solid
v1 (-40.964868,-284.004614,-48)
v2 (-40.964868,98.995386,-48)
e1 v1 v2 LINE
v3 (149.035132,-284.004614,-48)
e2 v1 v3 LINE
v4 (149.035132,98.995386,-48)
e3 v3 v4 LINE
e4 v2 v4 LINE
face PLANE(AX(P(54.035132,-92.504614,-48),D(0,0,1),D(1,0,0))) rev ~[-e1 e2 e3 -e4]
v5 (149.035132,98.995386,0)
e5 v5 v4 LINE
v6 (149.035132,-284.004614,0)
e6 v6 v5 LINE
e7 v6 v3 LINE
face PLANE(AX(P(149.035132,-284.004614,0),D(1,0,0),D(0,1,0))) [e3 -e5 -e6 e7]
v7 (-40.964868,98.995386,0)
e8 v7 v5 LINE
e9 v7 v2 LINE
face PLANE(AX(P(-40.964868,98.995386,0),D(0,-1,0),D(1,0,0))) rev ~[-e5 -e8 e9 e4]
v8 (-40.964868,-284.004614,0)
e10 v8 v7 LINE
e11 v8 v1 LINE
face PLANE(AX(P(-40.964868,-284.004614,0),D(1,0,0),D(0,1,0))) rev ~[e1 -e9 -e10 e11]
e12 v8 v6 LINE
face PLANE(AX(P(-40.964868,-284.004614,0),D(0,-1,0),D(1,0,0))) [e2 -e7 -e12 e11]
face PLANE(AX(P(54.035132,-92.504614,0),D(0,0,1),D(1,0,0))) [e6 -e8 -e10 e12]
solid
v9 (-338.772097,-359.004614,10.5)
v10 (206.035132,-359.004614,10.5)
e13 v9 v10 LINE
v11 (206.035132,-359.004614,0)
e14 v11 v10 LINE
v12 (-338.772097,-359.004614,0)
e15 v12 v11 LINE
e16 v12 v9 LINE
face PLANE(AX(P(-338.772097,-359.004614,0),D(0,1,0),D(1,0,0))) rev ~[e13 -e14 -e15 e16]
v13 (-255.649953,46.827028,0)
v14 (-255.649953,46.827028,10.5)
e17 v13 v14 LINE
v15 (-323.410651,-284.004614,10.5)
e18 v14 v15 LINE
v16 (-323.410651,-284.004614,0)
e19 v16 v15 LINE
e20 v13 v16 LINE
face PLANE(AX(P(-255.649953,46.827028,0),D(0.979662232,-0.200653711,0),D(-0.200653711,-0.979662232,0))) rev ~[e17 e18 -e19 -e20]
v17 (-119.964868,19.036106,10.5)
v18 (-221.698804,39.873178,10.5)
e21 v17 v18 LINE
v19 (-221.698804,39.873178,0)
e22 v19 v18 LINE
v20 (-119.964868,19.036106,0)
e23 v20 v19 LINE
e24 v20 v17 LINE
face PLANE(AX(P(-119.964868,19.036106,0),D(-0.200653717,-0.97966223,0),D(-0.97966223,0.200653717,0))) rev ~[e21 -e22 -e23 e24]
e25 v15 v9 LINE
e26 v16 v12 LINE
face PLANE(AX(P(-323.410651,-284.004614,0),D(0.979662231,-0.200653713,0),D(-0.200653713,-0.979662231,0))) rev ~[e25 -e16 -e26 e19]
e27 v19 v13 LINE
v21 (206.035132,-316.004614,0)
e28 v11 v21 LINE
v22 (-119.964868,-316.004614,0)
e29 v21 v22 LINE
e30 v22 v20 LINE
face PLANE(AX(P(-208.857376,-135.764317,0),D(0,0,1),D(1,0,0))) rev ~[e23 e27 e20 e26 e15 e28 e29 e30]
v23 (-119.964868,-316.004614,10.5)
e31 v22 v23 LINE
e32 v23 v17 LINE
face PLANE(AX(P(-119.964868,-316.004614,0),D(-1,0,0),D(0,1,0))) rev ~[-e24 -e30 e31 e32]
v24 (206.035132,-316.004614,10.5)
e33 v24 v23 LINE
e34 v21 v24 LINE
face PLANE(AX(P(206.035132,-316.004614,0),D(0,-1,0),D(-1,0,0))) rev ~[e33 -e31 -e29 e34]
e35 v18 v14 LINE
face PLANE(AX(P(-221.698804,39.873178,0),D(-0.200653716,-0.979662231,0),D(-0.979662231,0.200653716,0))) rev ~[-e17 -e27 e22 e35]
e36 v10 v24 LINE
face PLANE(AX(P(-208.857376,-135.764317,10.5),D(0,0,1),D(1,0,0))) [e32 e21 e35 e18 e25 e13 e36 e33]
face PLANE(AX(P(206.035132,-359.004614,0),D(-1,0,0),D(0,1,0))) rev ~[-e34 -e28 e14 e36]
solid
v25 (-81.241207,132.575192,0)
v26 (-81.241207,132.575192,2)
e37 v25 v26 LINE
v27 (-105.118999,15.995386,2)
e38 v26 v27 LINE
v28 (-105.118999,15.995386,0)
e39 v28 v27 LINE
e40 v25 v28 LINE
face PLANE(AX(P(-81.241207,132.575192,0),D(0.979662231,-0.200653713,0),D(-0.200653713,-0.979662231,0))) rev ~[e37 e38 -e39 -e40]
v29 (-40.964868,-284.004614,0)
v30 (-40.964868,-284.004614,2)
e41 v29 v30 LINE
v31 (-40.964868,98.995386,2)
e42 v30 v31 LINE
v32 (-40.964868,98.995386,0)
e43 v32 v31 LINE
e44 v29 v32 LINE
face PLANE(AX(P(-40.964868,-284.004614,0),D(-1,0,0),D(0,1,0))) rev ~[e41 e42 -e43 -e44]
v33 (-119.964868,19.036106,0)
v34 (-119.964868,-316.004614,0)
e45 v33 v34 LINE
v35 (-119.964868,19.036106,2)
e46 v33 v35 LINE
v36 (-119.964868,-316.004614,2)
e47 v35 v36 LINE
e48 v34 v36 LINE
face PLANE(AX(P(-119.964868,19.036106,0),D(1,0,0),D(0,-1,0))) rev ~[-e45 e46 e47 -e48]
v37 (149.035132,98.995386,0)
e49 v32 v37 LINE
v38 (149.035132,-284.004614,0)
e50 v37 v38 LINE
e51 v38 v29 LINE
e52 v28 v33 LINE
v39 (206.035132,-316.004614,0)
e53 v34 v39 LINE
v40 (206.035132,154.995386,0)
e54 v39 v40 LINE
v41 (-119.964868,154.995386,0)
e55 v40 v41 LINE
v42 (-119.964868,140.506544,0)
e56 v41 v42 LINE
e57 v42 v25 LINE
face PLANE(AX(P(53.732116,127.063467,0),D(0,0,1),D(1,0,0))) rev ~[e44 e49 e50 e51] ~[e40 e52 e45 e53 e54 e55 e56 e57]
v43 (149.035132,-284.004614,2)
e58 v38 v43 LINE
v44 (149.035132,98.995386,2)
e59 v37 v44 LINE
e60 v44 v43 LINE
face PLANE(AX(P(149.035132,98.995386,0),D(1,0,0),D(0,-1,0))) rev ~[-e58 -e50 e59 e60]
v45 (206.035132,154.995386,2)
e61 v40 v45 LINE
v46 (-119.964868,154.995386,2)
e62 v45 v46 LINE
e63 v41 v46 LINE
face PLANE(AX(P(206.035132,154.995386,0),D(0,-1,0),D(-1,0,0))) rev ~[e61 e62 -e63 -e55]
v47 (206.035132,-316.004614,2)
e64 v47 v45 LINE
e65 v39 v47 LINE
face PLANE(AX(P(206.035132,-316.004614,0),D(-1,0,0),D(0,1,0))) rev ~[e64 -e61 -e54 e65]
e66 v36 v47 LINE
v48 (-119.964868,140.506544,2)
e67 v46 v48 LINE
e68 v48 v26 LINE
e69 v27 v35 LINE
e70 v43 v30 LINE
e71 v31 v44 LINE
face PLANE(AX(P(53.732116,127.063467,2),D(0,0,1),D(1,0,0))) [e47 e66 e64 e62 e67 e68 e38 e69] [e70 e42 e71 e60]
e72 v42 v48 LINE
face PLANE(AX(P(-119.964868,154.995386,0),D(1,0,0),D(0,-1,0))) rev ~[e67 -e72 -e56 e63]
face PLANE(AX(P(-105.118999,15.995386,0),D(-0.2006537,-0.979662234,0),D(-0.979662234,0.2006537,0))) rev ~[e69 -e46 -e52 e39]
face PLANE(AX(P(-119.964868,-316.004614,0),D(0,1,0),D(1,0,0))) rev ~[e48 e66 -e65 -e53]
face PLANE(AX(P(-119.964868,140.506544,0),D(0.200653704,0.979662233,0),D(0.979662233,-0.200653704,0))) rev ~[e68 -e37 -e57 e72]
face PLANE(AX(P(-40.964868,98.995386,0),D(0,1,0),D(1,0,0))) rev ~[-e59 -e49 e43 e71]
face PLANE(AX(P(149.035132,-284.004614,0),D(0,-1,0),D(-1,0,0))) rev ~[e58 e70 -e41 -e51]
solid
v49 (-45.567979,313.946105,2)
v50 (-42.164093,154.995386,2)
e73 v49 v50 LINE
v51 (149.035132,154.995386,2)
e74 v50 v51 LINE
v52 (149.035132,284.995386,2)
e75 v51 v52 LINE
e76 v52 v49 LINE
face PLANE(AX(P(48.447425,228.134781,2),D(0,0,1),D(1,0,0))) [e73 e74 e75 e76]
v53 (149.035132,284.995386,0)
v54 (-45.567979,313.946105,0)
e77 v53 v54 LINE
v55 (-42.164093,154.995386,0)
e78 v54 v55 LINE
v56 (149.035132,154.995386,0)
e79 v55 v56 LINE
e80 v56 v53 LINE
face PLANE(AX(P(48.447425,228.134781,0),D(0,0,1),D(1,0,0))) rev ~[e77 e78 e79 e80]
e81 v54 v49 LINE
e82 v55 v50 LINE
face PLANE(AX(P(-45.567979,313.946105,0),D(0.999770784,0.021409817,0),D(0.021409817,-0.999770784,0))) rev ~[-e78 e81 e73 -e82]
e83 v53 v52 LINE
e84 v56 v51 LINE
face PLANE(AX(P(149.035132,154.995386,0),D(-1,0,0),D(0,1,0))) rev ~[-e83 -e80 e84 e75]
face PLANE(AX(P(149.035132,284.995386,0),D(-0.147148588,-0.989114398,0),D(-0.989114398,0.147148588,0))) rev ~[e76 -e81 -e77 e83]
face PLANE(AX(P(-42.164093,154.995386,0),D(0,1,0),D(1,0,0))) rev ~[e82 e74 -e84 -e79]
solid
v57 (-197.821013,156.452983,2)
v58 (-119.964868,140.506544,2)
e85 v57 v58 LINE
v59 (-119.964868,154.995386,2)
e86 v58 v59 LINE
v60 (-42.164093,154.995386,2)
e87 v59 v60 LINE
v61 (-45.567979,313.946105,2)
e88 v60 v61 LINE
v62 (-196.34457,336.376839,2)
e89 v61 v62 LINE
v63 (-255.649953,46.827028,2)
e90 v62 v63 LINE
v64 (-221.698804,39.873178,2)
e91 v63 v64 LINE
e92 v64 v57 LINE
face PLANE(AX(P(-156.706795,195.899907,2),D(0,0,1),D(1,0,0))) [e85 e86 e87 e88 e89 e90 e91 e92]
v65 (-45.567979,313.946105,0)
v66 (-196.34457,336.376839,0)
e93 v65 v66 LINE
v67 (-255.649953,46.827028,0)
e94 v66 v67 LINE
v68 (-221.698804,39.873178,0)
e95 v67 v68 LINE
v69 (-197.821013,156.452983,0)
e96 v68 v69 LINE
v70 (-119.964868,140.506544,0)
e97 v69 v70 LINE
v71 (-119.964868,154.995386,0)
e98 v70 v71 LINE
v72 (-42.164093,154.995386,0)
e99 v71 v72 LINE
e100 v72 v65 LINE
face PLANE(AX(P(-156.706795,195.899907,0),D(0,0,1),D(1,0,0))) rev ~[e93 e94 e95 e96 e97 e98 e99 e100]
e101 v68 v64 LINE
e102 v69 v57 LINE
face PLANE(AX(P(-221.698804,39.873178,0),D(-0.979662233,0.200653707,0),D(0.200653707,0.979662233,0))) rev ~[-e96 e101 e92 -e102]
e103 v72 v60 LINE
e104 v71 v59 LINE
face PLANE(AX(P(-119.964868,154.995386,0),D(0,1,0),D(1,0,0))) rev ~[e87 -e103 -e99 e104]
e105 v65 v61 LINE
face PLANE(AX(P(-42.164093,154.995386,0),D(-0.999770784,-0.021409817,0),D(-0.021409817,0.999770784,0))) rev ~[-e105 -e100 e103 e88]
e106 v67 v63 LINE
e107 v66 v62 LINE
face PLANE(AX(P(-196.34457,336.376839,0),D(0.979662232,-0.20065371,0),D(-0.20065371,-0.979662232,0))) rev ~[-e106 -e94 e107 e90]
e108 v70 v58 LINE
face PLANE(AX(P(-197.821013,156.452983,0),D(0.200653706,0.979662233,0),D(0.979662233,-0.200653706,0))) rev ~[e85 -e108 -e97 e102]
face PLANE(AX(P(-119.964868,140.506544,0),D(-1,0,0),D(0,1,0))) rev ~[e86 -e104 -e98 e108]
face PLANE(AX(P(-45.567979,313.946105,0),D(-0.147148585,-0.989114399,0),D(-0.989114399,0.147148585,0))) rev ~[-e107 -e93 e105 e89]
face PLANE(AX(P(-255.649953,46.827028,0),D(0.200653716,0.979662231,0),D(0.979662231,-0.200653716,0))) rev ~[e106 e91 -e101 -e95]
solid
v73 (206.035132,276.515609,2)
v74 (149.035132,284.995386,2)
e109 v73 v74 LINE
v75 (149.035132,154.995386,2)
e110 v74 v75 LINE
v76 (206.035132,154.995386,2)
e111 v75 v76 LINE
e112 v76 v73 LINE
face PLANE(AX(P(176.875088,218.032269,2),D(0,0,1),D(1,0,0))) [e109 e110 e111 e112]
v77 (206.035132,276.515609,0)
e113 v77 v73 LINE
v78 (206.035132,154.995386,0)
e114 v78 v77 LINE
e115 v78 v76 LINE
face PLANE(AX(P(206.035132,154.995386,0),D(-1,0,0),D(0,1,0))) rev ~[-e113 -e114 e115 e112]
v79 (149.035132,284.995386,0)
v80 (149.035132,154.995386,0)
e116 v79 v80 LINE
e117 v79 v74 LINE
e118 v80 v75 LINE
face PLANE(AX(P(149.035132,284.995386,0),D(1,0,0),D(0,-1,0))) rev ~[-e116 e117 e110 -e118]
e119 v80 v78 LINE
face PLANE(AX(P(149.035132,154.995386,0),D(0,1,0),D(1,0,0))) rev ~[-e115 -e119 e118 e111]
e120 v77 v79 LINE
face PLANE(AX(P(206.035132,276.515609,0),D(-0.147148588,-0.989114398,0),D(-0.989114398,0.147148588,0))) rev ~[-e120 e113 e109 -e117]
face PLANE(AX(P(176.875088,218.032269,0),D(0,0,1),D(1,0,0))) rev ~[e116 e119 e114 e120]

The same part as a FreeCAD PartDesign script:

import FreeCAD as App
import Part
import Sketcher

V = App.Vector

doc = App.newDocument("Part")
params = doc.addObject("Spreadsheet::Sheet", "Params")
for row, (alias, value) in enumerate([
    ("sketch1_width", "190 mm"),
    ("sketch1_height", "383 mm"),
    ("pad1_length", "48 mm"),
    ("sketch2_width", "326 mm"),
    ("sketch2_width2", "190 mm"),
    ("sketch2_height", "471 mm"),
    ("sketch2_height2", "383 mm"),
    ("sketch2_length", "119 mm"),
    ("pad2_length", "2 mm"),
    ("sketch3_width", "326 mm"),
    ("sketch3_height", "43 mm"),
    ("pad3_length", "10.5 mm"),
    ("sketch4_height", "130 mm"),
    ("pad4_length", "2 mm"),
    ("sketch5_width", "57 mm"),
    ("sketch5_height", "130 mm"),
    ("sketch5_length", "118.999999 mm"),
    ("pad5_length", "2 mm"),
], start=1):
    params.set(f"A{row}", alias)
    params.set(f"B{row}", "=" + value)
    params.setAlias(f"B{row}", alias)

body = doc.addObject("PartDesign::Body", "Body")

# Sketch on XY plane
sketch1 = doc.addObject("Sketcher::SketchObject", "Sketch")
body.addObject(sketch1)
sketch1.AttachmentSupport = (doc.XY_Plane, [""])
sketch1.MapMode = "FlatFace"
sketch1.addGeometry(Part.LineSegment(V(-41, 99, 0), V(-41, -284, 0)), False)
sketch1.addGeometry(Part.LineSegment(V(-41, -284, 0), V(149, -284, 0)), False)
sketch1.addGeometry(Part.LineSegment(V(149, -284, 0), V(149, 99, 0)), False)
sketch1.addGeometry(Part.LineSegment(V(149, 99, 0), V(-41, 99, 0)), False)
sketch1.addConstraint(Sketcher.Constraint("Coincident", 0, 2, 1, 1))
sketch1.addConstraint(Sketcher.Constraint("Coincident", 1, 2, 2, 1))
sketch1.addConstraint(Sketcher.Constraint("Coincident", 2, 2, 3, 1))
sketch1.addConstraint(Sketcher.Constraint("Coincident", 3, 2, 0, 1))
sketch1.addConstraint(Sketcher.Constraint("Vertical", 0))
sketch1.addConstraint(Sketcher.Constraint("Horizontal", 1))
sketch1.addConstraint(Sketcher.Constraint("Vertical", 2))
sketch1.addConstraint(Sketcher.Constraint("Horizontal", 3))
sketch1.addConstraint(Sketcher.Constraint("DistanceX", 1, 1, 1, 2, 190.0))
sketch1.addConstraint(Sketcher.Constraint("DistanceY", 0, 2, 0, 1, 383.0))
sketch1.addConstraint(Sketcher.Constraint("DistanceX", 0, 2, -1, 1, 40.964868))
sketch1.addConstraint(Sketcher.Constraint("DistanceY", 0, 2, -1, 1, 284.004614))
sketch1.setExpression("Constraints[8]", "Params.sketch1_width")
sketch1.setExpression("Constraints[9]", "Params.sketch1_height")
pad1 = doc.addObject("PartDesign::Pad", "Pad")
body.addObject(pad1)
pad1.Profile = sketch1
pad1.setExpression("Length", "Params.pad1_length")
pad1.Reversed = True
body2 = doc.addObject("PartDesign::Body", "Body001")

# Sketch on XY plane
sketch2 = doc.addObject("Sketcher::SketchObject", "Sketch001")
body2.addObject(sketch2)
sketch2.AttachmentSupport = (doc.getObject("XY_Plane001"), [""])
sketch2.MapMode = "FlatFace"
sketch2.addGeometry(Part.LineSegment(V(-120, 155, 0), V(-120, 141, 0)), False)
sketch2.addGeometry(Part.LineSegment(V(-120, 141, 0), V(-81, 133, 0)), False)
sketch2.addGeometry(Part.LineSegment(V(-81, 133, 0), V(-105, 16, 0)), False)
sketch2.addGeometry(Part.LineSegment(V(-105, 16, 0), V(-120, 19, 0)), False)
sketch2.addGeometry(Part.LineSegment(V(-120, 19, 0), V(-120, -316, 0)), False)
sketch2.addGeometry(Part.LineSegment(V(-120, -316, 0), V(206, -316, 0)), False)
sketch2.addGeometry(Part.LineSegment(V(206, -316, 0), V(206, 155, 0)), False)
sketch2.addGeometry(Part.LineSegment(V(206, 155, 0), V(-120, 155, 0)), False)
sketch2.addGeometry(Part.LineSegment(V(149, -284, 0), V(-41, -284, 0)), False)
sketch2.addGeometry(Part.LineSegment(V(-41, -284, 0), V(-41, 99, 0)), False)
sketch2.addGeometry(Part.LineSegment(V(-41, 99, 0), V(149, 99, 0)), False)
sketch2.addGeometry(Part.LineSegment(V(149, 99, 0), V(149, -284, 0)), False)
sketch2.addConstraint(Sketcher.Constraint("Coincident", 0, 2, 1, 1))
sketch2.addConstraint(Sketcher.Constraint("Coincident", 1, 2, 2, 1))
sketch2.addConstraint(Sketcher.Constraint("Coincident", 2, 2, 3, 1))
sketch2.addConstraint(Sketcher.Constraint("Coincident", 3, 2, 4, 1))
sketch2.addConstraint(Sketcher.Constraint("Coincident", 4, 2, 5, 1))
sketch2.addConstraint(Sketcher.Constraint("Coincident", 5, 2, 6, 1))
sketch2.addConstraint(Sketcher.Constraint("Coincident", 6, 2, 7, 1))
sketch2.addConstraint(Sketcher.Constraint("Coincident", 7, 2, 0, 1))
sketch2.addConstraint(Sketcher.Constraint("Coincident", 8, 2, 9, 1))
sketch2.addConstraint(Sketcher.Constraint("Coincident", 9, 2, 10, 1))
sketch2.addConstraint(Sketcher.Constraint("Coincident", 10, 2, 11, 1))
sketch2.addConstraint(Sketcher.Constraint("Coincident", 11, 2, 8, 1))
sketch2.addConstraint(Sketcher.Constraint("Vertical", 0))
sketch2.addConstraint(Sketcher.Constraint("Vertical", 4))
sketch2.addConstraint(Sketcher.Constraint("Horizontal", 5))
sketch2.addConstraint(Sketcher.Constraint("Vertical", 6))
sketch2.addConstraint(Sketcher.Constraint("Horizontal", 7))
sketch2.addConstraint(Sketcher.Constraint("Horizontal", 8))
sketch2.addConstraint(Sketcher.Constraint("Vertical", 9))
sketch2.addConstraint(Sketcher.Constraint("Horizontal", 10))
sketch2.addConstraint(Sketcher.Constraint("Vertical", 11))
sketch2.addConstraint(Sketcher.Constraint("Perpendicular", 1, 2))
sketch2.addConstraint(Sketcher.Constraint("Perpendicular", 2, 3))
sketch2.addConstraint(Sketcher.Constraint("Vertical", 0, 2, 3, 2))
sketch2.addConstraint(Sketcher.Constraint("DistanceX", 5, 1, 5, 2, 326.0))
sketch2.addConstraint(Sketcher.Constraint("DistanceX", 8, 2, 8, 1, 190.0))
sketch2.addConstraint(Sketcher.Constraint("DistanceY", 6, 1, 6, 2, 471.0))
sketch2.addConstraint(Sketcher.Constraint("DistanceY", 9, 1, 9, 2, 383.0))
sketch2.addConstraint(Sketcher.Constraint("Distance", 2, 119.0))
sketch2.addConstraint(Sketcher.Constraint("DistanceY", 4, 2, 2, 2, 332.0))
sketch2.addConstraint(Sketcher.Constraint("DistanceX", 4, 2, 8, 2, 79.0))
sketch2.addConstraint(Sketcher.Constraint("DistanceY", 4, 2, 8, 2, 32.0))
sketch2.addConstraint(Sketcher.Constraint("DistanceX", 2, 2, -1, 1, 105.118999))
sketch2.addConstraint(Sketcher.Constraint("DistanceY", 4, 2, 4, 1, 335.04072))
sketch2.addConstraint(Sketcher.Constraint("Distance", 3, 15.154069))
sketch2.addConstraint(Sketcher.Constraint("DistanceY", -1, 1, 1, 2, 132.575192))
sketch2.setExpression("Constraints[24]", "Params.sketch2_width")
sketch2.setExpression("Constraints[25]", "Params.sketch2_width2")
sketch2.setExpression("Constraints[26]", "Params.sketch2_height")
sketch2.setExpression("Constraints[27]", "Params.sketch2_height2")
sketch2.setExpression("Constraints[28]", "Params.sketch2_length")
pad2 = doc.addObject("PartDesign::Pad", "Pad001")
body2.addObject(pad2)
pad2.Profile = sketch2
pad2.setExpression("Length", "Params.pad2_length")
body3 = doc.addObject("PartDesign::Body", "Body002")

# Sketch on XY plane
sketch3 = doc.addObject("Sketcher::SketchObject", "Sketch002")
body3.addObject(sketch3)
sketch3.AttachmentSupport = (doc.getObject("XY_Plane002"), [""])
sketch3.MapMode = "FlatFace"
sketch3.addGeometry(Part.LineSegment(V(-222, 40, 0), V(-256, 47, 0)), False)
sketch3.addGeometry(Part.LineSegment(V(-256, 47, 0), V(-323, -284, 0)), False)
sketch3.addGeometry(Part.LineSegment(V(-323, -284, 0), V(-339, -359, 0)), False)
sketch3.addGeometry(Part.LineSegment(V(-339, -359, 0), V(206, -359, 0)), False)
sketch3.addGeometry(Part.LineSegment(V(206, -359, 0), V(206, -316, 0)), False)
sketch3.addGeometry(Part.LineSegment(V(206, -316, 0), V(-120, -316, 0)), False)
sketch3.addGeometry(Part.LineSegment(V(-120, -316, 0), V(-120, 19, 0)), False)
sketch3.addGeometry(Part.LineSegment(V(-120, 19, 0), V(-222, 40, 0)), False)
sketch3.addConstraint(Sketcher.Constraint("Coincident", 0, 2, 1, 1))
sketch3.addConstraint(Sketcher.Constraint("Coincident", 1, 2, 2, 1))
sketch3.addConstraint(Sketcher.Constraint("Coincident", 2, 2, 3, 1))
sketch3.addConstraint(Sketcher.Constraint("Coincident", 3, 2, 4, 1))
sketch3.addConstraint(Sketcher.Constraint("Coincident", 4, 2, 5, 1))
sketch3.addConstraint(Sketcher.Constraint("Coincident", 5, 2, 6, 1))
sketch3.addConstraint(Sketcher.Constraint("Coincident", 6, 2, 7, 1))
sketch3.addConstraint(Sketcher.Constraint("Coincident", 7, 2, 0, 1))
sketch3.addConstraint(Sketcher.Constraint("Horizontal", 3))
sketch3.addConstraint(Sketcher.Constraint("Vertical", 4))
sketch3.addConstraint(Sketcher.Constraint("Horizontal", 5))
sketch3.addConstraint(Sketcher.Constraint("Vertical", 6))
sketch3.addConstraint(Sketcher.Constraint("Perpendicular", 0, 1))
sketch3.addConstraint(Sketcher.Constraint("Parallel", 1, 2))
sketch3.addConstraint(Sketcher.Constraint("Perpendicular", 2, 7))
sketch3.addConstraint(Sketcher.Constraint("DistanceX", 5, 2, 5, 1, 326.0))
sketch3.addConstraint(Sketcher.Constraint("DistanceY", 4, 1, 4, 2, 43.0))
sketch3.addConstraint(Sketcher.Constraint("DistanceY", 2, 2, 1, 2, 75.0))
sketch3.addConstraint(Sketcher.Constraint("Distance", 2, 76.556999))
sketch3.addConstraint(Sketcher.Constraint("Distance", 1, 337.6997))
sketch3.addConstraint(Sketcher.Constraint("DistanceX", 3, 1, 3, 2, 544.807229))
sketch3.addConstraint(Sketcher.Constraint("Distance", 7, 103.845931))
sketch3.addConstraint(Sketcher.Constraint("DistanceX", 1, 2, -1, 1, 323.410651))
sketch3.addConstraint(Sketcher.Constraint("DistanceY", -1, 1, 7, 2, 39.873178))
sketch3.setExpression("Constraints[15]", "Params.sketch3_width")
sketch3.setExpression("Constraints[16]", "Params.sketch3_height")
pad3 = doc.addObject("PartDesign::Pad", "Pad002")
body3.addObject(pad3)
pad3.Profile = sketch3
pad3.setExpression("Length", "Params.pad3_length")
body4 = doc.addObject("PartDesign::Body", "Body003")

# Sketch on XY plane
sketch4 = doc.addObject("Sketcher::SketchObject", "Sketch003")
body4.addObject(sketch4)
sketch4.AttachmentSupport = (doc.getObject("XY_Plane003"), [""])
sketch4.MapMode = "FlatFace"
sketch4.addGeometry(Part.LineSegment(V(149, 285, 0), V(-46, 314, 0)), False)
sketch4.addGeometry(Part.LineSegment(V(-46, 314, 0), V(-42, 155, 0)), False)
sketch4.addGeometry(Part.LineSegment(V(-42, 155, 0), V(149, 155, 0)), False)
sketch4.addGeometry(Part.LineSegment(V(149, 155, 0), V(149, 285, 0)), False)
sketch4.addConstraint(Sketcher.Constraint("Coincident", 0, 2, 1, 1))
sketch4.addConstraint(Sketcher.Constraint("Coincident", 1, 2, 2, 1))
sketch4.addConstraint(Sketcher.Constraint("Coincident", 2, 2, 3, 1))
sketch4.addConstraint(Sketcher.Constraint("Coincident", 3, 2, 0, 1))
sketch4.addConstraint(Sketcher.Constraint("Horizontal", 2))
sketch4.addConstraint(Sketcher.Constraint("Vertical", 3))
sketch4.addConstraint(Sketcher.Constraint("DistanceY", 3, 1, 3, 2, 130.0))
sketch4.addConstraint(Sketcher.Constraint("Distance", 1, 158.987161))
sketch4.addConstraint(Sketcher.Constraint("DistanceX", 2, 1, 2, 2, 191.199225))
sketch4.addConstraint(Sketcher.Constraint("DistanceX", 0, 2, -1, 1, 45.567979))
sketch4.addConstraint(Sketcher.Constraint("DistanceX", -1, 1, 2, 2, 149.035132))
sketch4.addConstraint(Sketcher.Constraint("DistanceY", -1, 1, 0, 2, 313.946105))
sketch4.setExpression("Constraints[6]", "Params.sketch4_height")
pad4 = doc.addObject("PartDesign::Pad", "Pad003")
body4.addObject(pad4)
pad4.Profile = sketch4
pad4.setExpression("Length", "Params.pad4_length")
body5 = doc.addObject("PartDesign::Body", "Body004")
body5.AllowCompound = True

# Sketch on XY plane
sketch5 = doc.addObject("Sketcher::SketchObject", "Sketch004")
body5.addObject(sketch5)
sketch5.AttachmentSupport = (doc.getObject("XY_Plane004"), [""])
sketch5.MapMode = "FlatFace"
sketch5.addGeometry(Part.LineSegment(V(-46, 314, 0), V(-196, 336, 0)), False)
sketch5.addGeometry(Part.LineSegment(V(-196, 336, 0), V(-256, 47, 0)), False)
sketch5.addGeometry(Part.LineSegment(V(-256, 47, 0), V(-222, 40, 0)), False)
sketch5.addGeometry(Part.LineSegment(V(-222, 40, 0), V(-198, 156, 0)), False)
sketch5.addGeometry(Part.LineSegment(V(-198, 156, 0), V(-120, 141, 0)), False)
sketch5.addGeometry(Part.LineSegment(V(-120, 141, 0), V(-120, 155, 0)), False)
sketch5.addGeometry(Part.LineSegment(V(-120, 155, 0), V(-42, 155, 0)), False)
sketch5.addGeometry(Part.LineSegment(V(-42, 155, 0), V(-46, 314, 0)), False)
sketch5.addGeometry(Part.LineSegment(V(206, 277, 0), V(149, 285, 0)), False)
sketch5.addGeometry(Part.LineSegment(V(149, 285, 0), V(149, 155, 0)), False)
sketch5.addGeometry(Part.LineSegment(V(149, 155, 0), V(206, 155, 0)), False)
sketch5.addGeometry(Part.LineSegment(V(206, 155, 0), V(206, 277, 0)), False)
sketch5.addConstraint(Sketcher.Constraint("Coincident", 0, 2, 1, 1))
sketch5.addConstraint(Sketcher.Constraint("Coincident", 1, 2, 2, 1))
sketch5.addConstraint(Sketcher.Constraint("Coincident", 2, 2, 3, 1))
sketch5.addConstraint(Sketcher.Constraint("Coincident", 3, 2, 4, 1))
sketch5.addConstraint(Sketcher.Constraint("Coincident", 4, 2, 5, 1))
sketch5.addConstraint(Sketcher.Constraint("Coincident", 5, 2, 6, 1))
sketch5.addConstraint(Sketcher.Constraint("Coincident", 6, 2, 7, 1))
sketch5.addConstraint(Sketcher.Constraint("Coincident", 7, 2, 0, 1))
sketch5.addConstraint(Sketcher.Constraint("Coincident", 8, 2, 9, 1))
sketch5.addConstraint(Sketcher.Constraint("Coincident", 9, 2, 10, 1))
sketch5.addConstraint(Sketcher.Constraint("Coincident", 10, 2, 11, 1))
sketch5.addConstraint(Sketcher.Constraint("Coincident", 11, 2, 8, 1))
sketch5.addConstraint(Sketcher.Constraint("Vertical", 5))
sketch5.addConstraint(Sketcher.Constraint("Horizontal", 6))
sketch5.addConstraint(Sketcher.Constraint("Vertical", 9))
sketch5.addConstraint(Sketcher.Constraint("Horizontal", 10))
sketch5.addConstraint(Sketcher.Constraint("Vertical", 11))
sketch5.addConstraint(Sketcher.Constraint("Perpendicular", 1, 2))
sketch5.addConstraint(Sketcher.Constraint("Perpendicular", 2, 3))
sketch5.addConstraint(Sketcher.Constraint("Perpendicular", 3, 4))
sketch5.addConstraint(Sketcher.Constraint("Parallel", 0, 8))
sketch5.addConstraint(Sketcher.Constraint("Horizontal", 6, 2, 9, 2))
sketch5.addConstraint(Sketcher.Constraint("DistanceX", 10, 1, 10, 2, 57.0))
sketch5.addConstraint(Sketcher.Constraint("DistanceY", 9, 2, 9, 1, 130.0))
sketch5.addConstraint(Sketcher.Constraint("Distance", 3, 118.999999))
sketch5.addConstraint(Sketcher.Constraint("DistanceX", 5, 2, 8, 2, 269.0))
sketch5.addConstraint(Sketcher.Constraint("DistanceX", 0, 2, 8, 2, 345.379702))
sketch5.addConstraint(Sketcher.Constraint("Distance", 1, 295.560859))
sketch5.addConstraint(Sketcher.Constraint("Distance", 7, 158.987161))
sketch5.addConstraint(Sketcher.Constraint("DistanceX", 6, 1, 6, 2, 77.800775))
sketch5.addConstraint(Sketcher.Constraint("DistanceY", 5, 1, 5, 2, 14.488842))
sketch5.addConstraint(Sketcher.Constraint("DistanceY", 11, 1, 11, 2, 121.520223))
sketch5.addConstraint(Sketcher.Constraint("DistanceX", 0, 2, -1, 1, 196.34457))
sketch5.addConstraint(Sketcher.Constraint("DistanceY", -1, 1, 0, 2, 336.376839))
sketch5.addConstraint(Sketcher.Constraint("DistanceY", -1, 1, 2, 2, 39.873178))
sketch5.addConstraint(Sketcher.Constraint("DistanceX", 7, 2, -1, 1, 45.567979))
sketch5.setExpression("Constraints[22]", "Params.sketch5_width")
sketch5.setExpression("Constraints[23]", "Params.sketch5_height")
sketch5.setExpression("Constraints[24]", "Params.sketch5_length")
pad5 = doc.addObject("PartDesign::Pad", "Pad004")
body5.addObject(pad5)
pad5.Profile = sketch5
pad5.setExpression("Length", "Params.pad5_length")

doc.recompute()
